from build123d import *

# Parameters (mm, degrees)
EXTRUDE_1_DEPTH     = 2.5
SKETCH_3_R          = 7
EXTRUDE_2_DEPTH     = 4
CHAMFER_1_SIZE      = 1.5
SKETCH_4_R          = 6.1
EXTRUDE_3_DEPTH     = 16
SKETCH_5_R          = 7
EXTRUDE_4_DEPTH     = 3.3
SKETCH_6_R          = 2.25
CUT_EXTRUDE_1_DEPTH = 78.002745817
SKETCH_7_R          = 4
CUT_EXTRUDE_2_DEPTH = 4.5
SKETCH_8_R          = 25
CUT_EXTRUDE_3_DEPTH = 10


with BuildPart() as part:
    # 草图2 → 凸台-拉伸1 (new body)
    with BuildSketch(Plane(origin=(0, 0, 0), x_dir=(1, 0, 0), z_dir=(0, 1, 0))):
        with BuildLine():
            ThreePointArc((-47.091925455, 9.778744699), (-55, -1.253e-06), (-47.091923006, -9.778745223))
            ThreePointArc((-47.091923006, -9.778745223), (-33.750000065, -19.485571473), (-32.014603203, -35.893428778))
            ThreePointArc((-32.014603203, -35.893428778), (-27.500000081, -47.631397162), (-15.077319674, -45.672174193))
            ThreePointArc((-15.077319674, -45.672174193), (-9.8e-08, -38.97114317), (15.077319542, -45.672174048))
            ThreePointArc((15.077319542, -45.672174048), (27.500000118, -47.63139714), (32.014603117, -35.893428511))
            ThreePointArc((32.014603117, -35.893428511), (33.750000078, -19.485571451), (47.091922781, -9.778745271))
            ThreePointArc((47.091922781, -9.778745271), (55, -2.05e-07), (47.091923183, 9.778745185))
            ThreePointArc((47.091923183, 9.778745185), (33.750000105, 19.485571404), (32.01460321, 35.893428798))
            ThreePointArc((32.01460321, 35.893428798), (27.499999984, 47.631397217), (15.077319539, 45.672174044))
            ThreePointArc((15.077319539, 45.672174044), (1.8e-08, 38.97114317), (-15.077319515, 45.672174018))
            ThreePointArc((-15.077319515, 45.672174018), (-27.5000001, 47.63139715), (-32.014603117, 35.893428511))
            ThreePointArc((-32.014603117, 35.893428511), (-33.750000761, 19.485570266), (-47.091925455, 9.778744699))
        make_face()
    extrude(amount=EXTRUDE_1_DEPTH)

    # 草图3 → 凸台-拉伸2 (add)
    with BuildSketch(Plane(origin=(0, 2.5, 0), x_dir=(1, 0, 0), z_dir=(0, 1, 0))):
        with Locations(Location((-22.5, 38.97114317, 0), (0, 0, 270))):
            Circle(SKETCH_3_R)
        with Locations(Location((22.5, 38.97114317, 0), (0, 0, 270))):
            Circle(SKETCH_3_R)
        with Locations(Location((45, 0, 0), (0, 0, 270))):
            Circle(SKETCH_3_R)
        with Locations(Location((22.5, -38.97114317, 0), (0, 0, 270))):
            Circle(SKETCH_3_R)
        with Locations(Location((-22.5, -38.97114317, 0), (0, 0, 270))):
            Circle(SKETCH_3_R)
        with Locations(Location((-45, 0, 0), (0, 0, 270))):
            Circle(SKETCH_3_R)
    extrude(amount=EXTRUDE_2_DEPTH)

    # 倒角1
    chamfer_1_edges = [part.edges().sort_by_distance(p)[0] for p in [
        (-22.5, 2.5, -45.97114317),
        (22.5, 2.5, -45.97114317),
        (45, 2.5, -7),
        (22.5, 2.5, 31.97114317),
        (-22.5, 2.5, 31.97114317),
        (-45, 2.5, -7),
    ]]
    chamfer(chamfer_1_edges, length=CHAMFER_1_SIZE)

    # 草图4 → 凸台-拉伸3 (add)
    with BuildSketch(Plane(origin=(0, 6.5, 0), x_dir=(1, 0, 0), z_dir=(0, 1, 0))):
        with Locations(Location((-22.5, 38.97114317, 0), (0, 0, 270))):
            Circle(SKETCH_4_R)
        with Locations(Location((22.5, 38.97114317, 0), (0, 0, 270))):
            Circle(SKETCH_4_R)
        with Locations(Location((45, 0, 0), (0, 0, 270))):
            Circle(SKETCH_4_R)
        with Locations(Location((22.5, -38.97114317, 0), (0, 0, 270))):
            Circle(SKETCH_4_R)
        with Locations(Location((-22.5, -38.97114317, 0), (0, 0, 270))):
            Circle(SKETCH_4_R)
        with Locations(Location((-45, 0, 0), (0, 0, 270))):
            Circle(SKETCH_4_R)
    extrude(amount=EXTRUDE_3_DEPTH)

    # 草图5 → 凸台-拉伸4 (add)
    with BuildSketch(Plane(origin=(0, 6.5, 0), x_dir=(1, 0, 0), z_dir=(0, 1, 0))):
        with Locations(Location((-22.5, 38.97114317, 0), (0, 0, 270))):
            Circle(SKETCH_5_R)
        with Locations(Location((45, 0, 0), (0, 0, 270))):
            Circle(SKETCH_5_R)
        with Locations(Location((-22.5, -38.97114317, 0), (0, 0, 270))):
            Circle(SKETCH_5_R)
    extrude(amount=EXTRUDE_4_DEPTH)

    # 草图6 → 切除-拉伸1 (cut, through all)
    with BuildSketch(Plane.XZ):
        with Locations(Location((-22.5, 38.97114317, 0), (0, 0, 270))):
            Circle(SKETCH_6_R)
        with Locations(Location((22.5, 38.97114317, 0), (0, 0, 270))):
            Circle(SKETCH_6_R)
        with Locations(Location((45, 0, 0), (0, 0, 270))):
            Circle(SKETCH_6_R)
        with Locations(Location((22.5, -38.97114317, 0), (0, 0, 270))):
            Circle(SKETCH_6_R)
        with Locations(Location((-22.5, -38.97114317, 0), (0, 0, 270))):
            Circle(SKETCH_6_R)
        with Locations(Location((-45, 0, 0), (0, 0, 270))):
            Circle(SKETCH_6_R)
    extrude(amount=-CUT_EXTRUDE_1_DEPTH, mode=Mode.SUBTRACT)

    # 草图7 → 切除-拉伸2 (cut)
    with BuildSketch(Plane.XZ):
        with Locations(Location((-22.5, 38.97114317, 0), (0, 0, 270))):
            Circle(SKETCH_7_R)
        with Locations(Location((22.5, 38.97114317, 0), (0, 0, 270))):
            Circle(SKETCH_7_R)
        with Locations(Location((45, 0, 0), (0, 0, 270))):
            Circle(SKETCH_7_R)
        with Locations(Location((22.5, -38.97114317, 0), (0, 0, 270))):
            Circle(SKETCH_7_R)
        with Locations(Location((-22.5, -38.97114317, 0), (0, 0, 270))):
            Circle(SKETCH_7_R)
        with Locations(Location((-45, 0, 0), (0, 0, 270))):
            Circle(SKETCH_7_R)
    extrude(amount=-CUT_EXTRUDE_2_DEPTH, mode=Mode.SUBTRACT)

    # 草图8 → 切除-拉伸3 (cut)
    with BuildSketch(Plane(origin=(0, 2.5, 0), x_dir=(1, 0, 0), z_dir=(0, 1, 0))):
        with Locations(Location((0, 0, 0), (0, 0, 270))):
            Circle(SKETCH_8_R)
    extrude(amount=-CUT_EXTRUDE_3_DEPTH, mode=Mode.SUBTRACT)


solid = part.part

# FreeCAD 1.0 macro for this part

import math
import FreeCAD as App
import Part
import Sketcher
from FreeCAD import Vector
Q = App.Units.Quantity


def edges_at(feature, points):
    """Names of the edges that pass closest to the given points."""
    edges = feature.Shape.Edges
    near = lambda p: min(range(len(edges)), key=lambda i: edges[i].distToShape(Part.Vertex(*p))[0])
    return sorted({f"Edge{near(p) + 1}" for p in points})

doc = App.newDocument("Part")
body = doc.addObject("PartDesign::Body", "Body")

# Sketch on XZ plane
sketch1 = doc.addObject("Sketcher::SketchObject", "Sketch")
body.addObject(sketch1)
sketch1.AttachmentSupport = (doc.XZ_Plane, [""])
sketch1.MapMode = "FlatFace"
sketch1.addGeometry(Part.ArcOfCircle(Part.Circle(Vector(-45, 0, 0), Vector(0, 0, 1), 10), math.radians(102), math.radians(258)), False)
sketch1.addGeometry(Part.ArcOfCircle(Part.Circle(Vector(-51, 30, 0), Vector(0, 0, 1), 20), math.radians(-78), math.radians(18)), False)
sketch1.addGeometry(Part.ArcOfCircle(Part.Circle(Vector(-23, 39, 0), Vector(0, 0, 1), 10), math.radians(42), math.radians(198)), False)
sketch1.addGeometry(Part.ArcOfCircle(Part.Circle(Vector(0, 59, 0), Vector(0, 0, 1), 20), math.radians(-138), math.radians(-42)), False)
sketch1.addGeometry(Part.ArcOfCircle(Part.Circle(Vector(22, 39, 0), Vector(0, 0, 1), 10), math.radians(-18), math.radians(138)), False)
sketch1.addGeometry(Part.ArcOfCircle(Part.Circle(Vector(51, 30, 0), Vector(0, 0, 1), 20), math.radians(162), math.radians(258)), False)
sketch1.addGeometry(Part.ArcOfCircle(Part.Circle(Vector(45, 0, 0), Vector(0, 0, 1), 10), math.radians(-78), math.radians(78)), False)
sketch1.addGeometry(Part.ArcOfCircle(Part.Circle(Vector(51, -30, 0), Vector(0, 0, 1), 20), math.radians(102), math.radians(198)), False)
sketch1.addGeometry(Part.ArcOfCircle(Part.Circle(Vector(22, -39, 0), Vector(0, 0, 1), 10), math.radians(-138), math.radians(18)), False)
sketch1.addGeometry(Part.ArcOfCircle(Part.Circle(Vector(0, -59, 0), Vector(0, 0, 1), 20), math.radians(42), math.radians(138)), False)
sketch1.addGeometry(Part.ArcOfCircle(Part.Circle(Vector(-22, -39, 0), Vector(0, 0, 1), 10), math.radians(162), math.radians(318)), False)
sketch1.addGeometry(Part.ArcOfCircle(Part.Circle(Vector(-51, -30, 0), Vector(0, 0, 1), 20), math.radians(-18), math.radians(78)), False)
sketch1.addConstraint(Sketcher.Constraint("Tangent", 0, 1, 1, 1))
sketch1.addConstraint(Sketcher.Constraint("Tangent", 1, 2, 2, 2))
sketch1.addConstraint(Sketcher.Constraint("Tangent", 2, 1, 3, 1))
sketch1.addConstraint(Sketcher.Constraint("Tangent", 3, 2, 4, 2))
sketch1.addConstraint(Sketcher.Constraint("Tangent", 4, 1, 5, 1))
sketch1.addConstraint(Sketcher.Constraint("Tangent", 5, 2, 6, 2))
sketch1.addConstraint(Sketcher.Constraint("Tangent", 6, 1, 7, 1))
sketch1.addConstraint(Sketcher.Constraint("Tangent", 7, 2, 8, 2))
sketch1.addConstraint(Sketcher.Constraint("Tangent", 8, 1, 9, 1))
sketch1.addConstraint(Sketcher.Constraint("Tangent", 9, 2, 10, 2))
sketch1.addConstraint(Sketcher.Constraint("Tangent", 10, 1, 11, 1))
sketch1.addConstraint(Sketcher.Constraint("Tangent", 11, 2, 0, 2))
sketch1.addConstraint(Sketcher.Constraint("Equal", 0, 2))
sketch1.addConstraint(Sketcher.Constraint("Equal", 1, 3))
sketch1.addConstraint(Sketcher.Constraint("Equal", 2, 4))
sketch1.addConstraint(Sketcher.Constraint("Equal", 3, 5))
sketch1.addConstraint(Sketcher.Constraint("Equal", 4, 6))
sketch1.addConstraint(Sketcher.Constraint("Equal", 5, 7))
sketch1.addConstraint(Sketcher.Constraint("Equal", 6, 8))
sketch1.addConstraint(Sketcher.Constraint("Equal", 7, 9))
sketch1.addConstraint(Sketcher.Constraint("Equal", 8, 10))
sketch1.addConstraint(Sketcher.Constraint("Equal", 9, 11))
sketch1.addConstraint(Sketcher.Constraint("Symmetric", 0, 3, 6, 3, -1, 1))
sketch1.addConstraint(Sketcher.Constraint("Symmetric", 2, 3, 8, 3, -1, 1))
sketch1.addConstraint(Sketcher.Constraint("Symmetric", 4, 3, 10, 3, -1, 1))
sketch1.addConstraint(Sketcher.Constraint("Symmetric", 2, 3, 4, 3, -2))
sketch1.addConstraint(Sketcher.Constraint("PointOnObject", 0, 3, -1))
sketch1.addConstraint(Sketcher.Constraint("Radius", 0, Q("10 mm")))
sketch1.addConstraint(Sketcher.Constraint("DistanceX", 0, 3, -1, 1, Q("45 mm")))
sketch1.addConstraint(Sketcher.Constraint("DistanceX", 2, 3, 4, 3, Q("45 mm")))
sketch1.addConstraint(Sketcher.Constraint("Radius", 1, Q("20.3125 mm")))
sketch1.addConstraint(Sketcher.Constraint("DistanceY", 10, 3, 11, 2, Q("29.192398 mm")))
pad1 = doc.addObject("PartDesign::Pad", "Pad")
body.addObject(pad1)
pad1.Profile = sketch1
pad1.Length = 2.5
pad1.Reversed = True

# Sketch on XZ plane
sketch2 = doc.addObject("Sketcher::SketchObject", "Sketch001")
body.addObject(sketch2)
sketch2.AttachmentSupport = (doc.XZ_Plane, [""])
sketch2.MapMode = "FlatFace"
sketch2.AttachmentOffset = App.Placement(Vector(0, 0, -2.5), App.Rotation())
sketch2.addGeometry(Part.Circle(Vector(-22, -39, 0), Vector(0, 0, 1), 7), False)
sketch2.addGeometry(Part.Circle(Vector(22, -39, 0), Vector(0, 0, 1), 7), False)
sketch2.addGeometry(Part.Circle(Vector(45, 0, 0), Vector(0, 0, 1), 7), False)
sketch2.addGeometry(Part.Circle(Vector(22, 39, 0), Vector(0, 0, 1), 7), False)
sketch2.addGeometry(Part.Circle(Vector(-22, 39, 0), Vector(0, 0, 1), 7), False)
sketch2.addGeometry(Part.Circle(Vector(-45, 0, 0), Vector(0, 0, 1), 7), False)
sketch2.addConstraint(Sketcher.Constraint("Equal", 0, 1))
sketch2.addConstraint(Sketcher.Constraint("Equal", 1, 2))
sketch2.addConstraint(Sketcher.Constraint("Equal", 2, 3))
sketch2.addConstraint(Sketcher.Constraint("Equal", 3, 4))
sketch2.addConstraint(Sketcher.Constraint("Equal", 4, 5))
sketch2.addConstraint(Sketcher.Constraint("Symmetric", 0, 3, 3, 3, -1, 1))
sketch2.addConstraint(Sketcher.Constraint("Symmetric", 1, 3, 4, 3, -1, 1))
sketch2.addConstraint(Sketcher.Constraint("Symmetric", 2, 3, 5, 3, -1, 1))
sketch2.addConstraint(Sketcher.Constraint("Symmetric", 0, 3, 1, 3, -2))
sketch2.addConstraint(Sketcher.Constraint("PointOnObject", 2, 3, -1))
sketch2.addConstraint(Sketcher.Constraint("Diameter", 0, Q("14 mm")))
sketch2.addConstraint(Sketcher.Constraint("DistanceX", -1, 1, 2, 3, Q("45 mm")))
sketch2.addConstraint(Sketcher.Constraint("DistanceX", 0, 3, 1, 3, Q("45 mm")))
sketch2.addConstraint(Sketcher.Constraint("DistanceY", 0, 3, -1, 1, Q("38.971143 mm")))
pad2 = doc.addObject("PartDesign::Pad", "Pad001")
body.addObject(pad2)
pad2.Profile = sketch2
pad2.Length = 4
pad2.Reversed = True
doc.recompute()

chamfer = doc.addObject("PartDesign::Chamfer", "Chamfer")
body.addObject(chamfer)
chamfer.Base = (pad2, edges_at(pad2, [
    (-22.5, 2.5, -45.971),
    (22.5, 2.5, -45.971),
    (45, 2.5, -7),
    (22.5, 2.5, 31.971),
    (-22.5, 2.5, 31.971),
    (-45, 2.5, -7),
]))
chamfer.Size = 1.5

# Sketch on XZ plane
sketch3 = doc.addObject("Sketcher::SketchObject", "Sketch002")
body.addObject(sketch3)
sketch3.AttachmentSupport = (doc.XZ_Plane, [""])
sketch3.MapMode = "FlatFace"
sketch3.AttachmentOffset = App.Placement(Vector(0, 0, -6.5), App.Rotation())
sketch3.addGeometry(Part.Circle(Vector(-22, -39, 0), Vector(0, 0, 1), 6), False)
sketch3.addGeometry(Part.Circle(Vector(22, -39, 0), Vector(0, 0, 1), 6), False)
sketch3.addGeometry(Part.Circle(Vector(45, 0, 0), Vector(0, 0, 1), 6), False)
sketch3.addGeometry(Part.Circle(Vector(22, 39, 0), Vector(0, 0, 1), 6), False)
sketch3.addGeometry(Part.Circle(Vector(-22, 39, 0), Vector(0, 0, 1), 6), False)
sketch3.addGeometry(Part.Circle(Vector(-45, 0, 0), Vector(0, 0, 1), 6), False)
sketch3.addConstraint(Sketcher.Constraint("Equal", 0, 1))
sketch3.addConstraint(Sketcher.Constraint("Equal", 1, 2))
sketch3.addConstraint(Sketcher.Constraint("Equal", 2, 3))
sketch3.addConstraint(Sketcher.Constraint("Equal", 3, 4))
sketch3.addConstraint(Sketcher.Constraint("Equal", 4, 5))
sketch3.addConstraint(Sketcher.Constraint("Symmetric", 0, 3, 3, 3, -1, 1))
sketch3.addConstraint(Sketcher.Constraint("Symmetric", 1, 3, 4, 3, -1, 1))
sketch3.addConstraint(Sketcher.Constraint("Symmetric", 2, 3, 5, 3, -1, 1))
sketch3.addConstraint(Sketcher.Constraint("Symmetric", 0, 3, 1, 3, -2))
sketch3.addConstraint(Sketcher.Constraint("PointOnObject", 2, 3, -1))
sketch3.addConstraint(Sketcher.Constraint("Diameter", 0, Q("12.2 mm")))
sketch3.addConstraint(Sketcher.Constraint("DistanceX", -1, 1, 2, 3, Q("45 mm")))
sketch3.addConstraint(Sketcher.Constraint("DistanceX", 0, 3, 1, 3, Q("45 mm")))
sketch3.addConstraint(Sketcher.Constraint("DistanceY", 0, 3, -1, 1, Q("38.971143 mm")))
pad3 = doc.addObject("PartDesign::Pad", "Pad002")
body.addObject(pad3)
pad3.Profile = sketch3
pad3.Length = 16
pad3.Reversed = True

# Sketch on XZ plane
sketch4 = doc.addObject("Sketcher::SketchObject", "Sketch003")
body.addObject(sketch4)
sketch4.AttachmentSupport = (doc.XZ_Plane, [""])
sketch4.MapMode = "FlatFace"
sketch4.AttachmentOffset = App.Placement(Vector(0, 0, -6.5), App.Rotation())
sketch4.addGeometry(Part.Circle(Vector(-22, -39, 0), Vector(0, 0, 1), 7), False)
sketch4.addGeometry(Part.Circle(Vector(45, 0, 0), Vector(0, 0, 1), 7), False)
sketch4.addGeometry(Part.Circle(Vector(-22, 39, 0), Vector(0, 0, 1), 7), False)
sketch4.addConstraint(Sketcher.Constraint("Equal", 0, 1))
sketch4.addConstraint(Sketcher.Constraint("Equal", 1, 2))
sketch4.addConstraint(Sketcher.Constraint("Symmetric", 0, 3, 2, 3, -1))
sketch4.addConstraint(Sketcher.Constraint("PointOnObject", 1, 3, -1))
sketch4.addConstraint(Sketcher.Constraint("Diameter", 0, Q("14 mm")))
sketch4.addConstraint(Sketcher.Constraint("DistanceX", -1, 1, 1, 3, Q("45 mm")))
sketch4.addConstraint(Sketcher.Constraint("DistanceX", 0, 3, -1, 1, Q("22.5 mm")))
sketch4.addConstraint(Sketcher.Constraint("DistanceY", 0, 3, -1, 1, Q("38.971143 mm")))
pad4 = doc.addObject("PartDesign::Pad", "Pad003")
body.addObject(pad4)
pad4.Profile = sketch4
pad4.Length = 3.3
pad4.Reversed = True

# Sketch on XZ plane
sketch5 = doc.addObject("Sketcher::SketchObject", "Sketch004")
body.addObject(sketch5)
sketch5.AttachmentSupport = (doc.XZ_Plane, [""])
sketch5.MapMode = "FlatFace"
sketch5.addGeometry(Part.Circle(Vector(-22.5, 39, 0), Vector(0, 0, 1), 2.2), False)
sketch5.addGeometry(Part.Circle(Vector(22.5, 39, 0), Vector(0, 0, 1), 2.2), False)
sketch5.addGeometry(Part.Circle(Vector(45, 0, 0), Vector(0, 0, 1), 2.2), False)
sketch5.addGeometry(Part.Circle(Vector(22.5, -39, 0), Vector(0, 0, 1), 2.2), False)
sketch5.addGeometry(Part.Circle(Vector(-22.5, -39, 0), Vector(0, 0, 1), 2.2), False)
sketch5.addGeometry(Part.Circle(Vector(-45, 0, 0), Vector(0, 0, 1), 2.2), False)
sketch5.addConstraint(Sketcher.Constraint("Equal", 0, 1))
sketch5.addConstraint(Sketcher.Constraint("Equal", 1, 2))
sketch5.addConstraint(Sketcher.Constraint("Equal", 2, 3))
sketch5.addConstraint(Sketcher.Constraint("Equal", 3, 4))
sketch5.addConstraint(Sketcher.Constraint("Equal", 4, 5))
sketch5.addConstraint(Sketcher.Constraint("Symmetric", 0, 3, 3, 3, -1, 1))
sketch5.addConstraint(Sketcher.Constraint("Symmetric", 1, 3, 4, 3, -1, 1))
sketch5.addConstraint(Sketcher.Constraint("Symmetric", 2, 3, 5, 3, -1, 1))
sketch5.addConstraint(Sketcher.Constraint("Symmetric", 0, 3, 1, 3, -2))
sketch5.addConstraint(Sketcher.Constraint("PointOnObject", 2, 3, -1))
sketch5.addConstraint(Sketcher.Constraint("Diameter", 0, Q("4.5 mm")))
sketch5.addConstraint(Sketcher.Constraint("DistanceX", -1, 1, 2, 3, Q("45 mm")))
sketch5.addConstraint(Sketcher.Constraint("DistanceX", 0, 3, 1, 3, Q("45 mm")))
sketch5.addConstraint(Sketcher.Constraint("DistanceY", -1, 1, 0, 3, Q("38.971143 mm")))
pocket1 = doc.addObject("PartDesign::Pocket", "Pocket")
body.addObject(pocket1)
pocket1.Profile = sketch5
pocket1.Type = "ThroughAll"

# Sketch on XZ plane
sketch6 = doc.addObject("Sketcher::SketchObject", "Sketch005")
body.addObject(sketch6)
sketch6.AttachmentSupport = (doc.XZ_Plane, [""])
sketch6.MapMode = "FlatFace"
sketch6.addGeometry(Part.Circle(Vector(-22.5, 39, 0), Vector(0, 0, 1), 4), False)
sketch6.addGeometry(Part.Circle(Vector(22.5, 39, 0), Vector(0, 0, 1), 4), False)
sketch6.addGeometry(Part.Circle(Vector(45, 0, 0), Vector(0, 0, 1), 4), False)
sketch6.addGeometry(Part.Circle(Vector(22.5, -39, 0), Vector(0, 0, 1), 4), False)
sketch6.addGeometry(Part.Circle(Vector(-22.5, -39, 0), Vector(0, 0, 1), 4), False)
sketch6.addGeometry(Part.Circle(Vector(-45, 0, 0), Vector(0, 0, 1), 4), False)
sketch6.addConstraint(Sketcher.Constraint("Equal", 0, 1))
sketch6.addConstraint(Sketcher.Constraint("Equal", 1, 2))
sketch6.addConstraint(Sketcher.Constraint("Equal", 2, 3))
sketch6.addConstraint(Sketcher.Constraint("Equal", 3, 4))
sketch6.addConstraint(Sketcher.Constraint("Equal", 4, 5))
sketch6.addConstraint(Sketcher.Constraint("Symmetric", 0, 3, 3, 3, -1, 1))
sketch6.addConstraint(Sketcher.Constraint("Symmetric", 1, 3, 4, 3, -1, 1))
sketch6.addConstraint(Sketcher.Constraint("Symmetric", 2, 3, 5, 3, -1, 1))
sketch6.addConstraint(Sketcher.Constraint("Symmetric", 0, 3, 1, 3, -2))
sketch6.addConstraint(Sketcher.Constraint("PointOnObject", 2, 3, -1))
sketch6.addConstraint(Sketcher.Constraint("Diameter", 0, Q("8 mm")))
sketch6.addConstraint(Sketcher.Constraint("DistanceX", -1, 1, 2, 3, Q("45 mm")))
sketch6.addConstraint(Sketcher.Constraint("DistanceX", 0, 3, 1, 3, Q("45 mm")))
sketch6.addConstraint(Sketcher.Constraint("DistanceY", -1, 1, 0, 3, Q("38.971143 mm")))
pocket2 = doc.addObject("PartDesign::Pocket", "Pocket001")
body.addObject(pocket2)
pocket2.Profile = sketch6
pocket2.Length = 4.5

# Sketch on XZ plane
sketch7 = doc.addObject("Sketcher::SketchObject", "Sketch006")
body.addObject(sketch7)
sketch7.AttachmentSupport = (doc.XZ_Plane, [""])
sketch7.MapMode = "FlatFace"
sketch7.AttachmentOffset = App.Placement(Vector(0, 0, -2.5), App.Rotation())
sketch7.addGeometry(Part.Circle(Vector(0, 0, 0), Vector(0, 0, 1), 25), False)
sketch7.addConstraint(Sketcher.Constraint("Coincident", 0, 3, -1, 1))
sketch7.addConstraint(Sketcher.Constraint("Diameter", 0, Q("50 mm")))
pocket3 = doc.addObject("PartDesign::Pocket", "Pocket002")
body.addObject(pocket3)
pocket3.Profile = sketch7
pocket3.Length = 10
pocket3.Reversed = True

doc.recompute()
